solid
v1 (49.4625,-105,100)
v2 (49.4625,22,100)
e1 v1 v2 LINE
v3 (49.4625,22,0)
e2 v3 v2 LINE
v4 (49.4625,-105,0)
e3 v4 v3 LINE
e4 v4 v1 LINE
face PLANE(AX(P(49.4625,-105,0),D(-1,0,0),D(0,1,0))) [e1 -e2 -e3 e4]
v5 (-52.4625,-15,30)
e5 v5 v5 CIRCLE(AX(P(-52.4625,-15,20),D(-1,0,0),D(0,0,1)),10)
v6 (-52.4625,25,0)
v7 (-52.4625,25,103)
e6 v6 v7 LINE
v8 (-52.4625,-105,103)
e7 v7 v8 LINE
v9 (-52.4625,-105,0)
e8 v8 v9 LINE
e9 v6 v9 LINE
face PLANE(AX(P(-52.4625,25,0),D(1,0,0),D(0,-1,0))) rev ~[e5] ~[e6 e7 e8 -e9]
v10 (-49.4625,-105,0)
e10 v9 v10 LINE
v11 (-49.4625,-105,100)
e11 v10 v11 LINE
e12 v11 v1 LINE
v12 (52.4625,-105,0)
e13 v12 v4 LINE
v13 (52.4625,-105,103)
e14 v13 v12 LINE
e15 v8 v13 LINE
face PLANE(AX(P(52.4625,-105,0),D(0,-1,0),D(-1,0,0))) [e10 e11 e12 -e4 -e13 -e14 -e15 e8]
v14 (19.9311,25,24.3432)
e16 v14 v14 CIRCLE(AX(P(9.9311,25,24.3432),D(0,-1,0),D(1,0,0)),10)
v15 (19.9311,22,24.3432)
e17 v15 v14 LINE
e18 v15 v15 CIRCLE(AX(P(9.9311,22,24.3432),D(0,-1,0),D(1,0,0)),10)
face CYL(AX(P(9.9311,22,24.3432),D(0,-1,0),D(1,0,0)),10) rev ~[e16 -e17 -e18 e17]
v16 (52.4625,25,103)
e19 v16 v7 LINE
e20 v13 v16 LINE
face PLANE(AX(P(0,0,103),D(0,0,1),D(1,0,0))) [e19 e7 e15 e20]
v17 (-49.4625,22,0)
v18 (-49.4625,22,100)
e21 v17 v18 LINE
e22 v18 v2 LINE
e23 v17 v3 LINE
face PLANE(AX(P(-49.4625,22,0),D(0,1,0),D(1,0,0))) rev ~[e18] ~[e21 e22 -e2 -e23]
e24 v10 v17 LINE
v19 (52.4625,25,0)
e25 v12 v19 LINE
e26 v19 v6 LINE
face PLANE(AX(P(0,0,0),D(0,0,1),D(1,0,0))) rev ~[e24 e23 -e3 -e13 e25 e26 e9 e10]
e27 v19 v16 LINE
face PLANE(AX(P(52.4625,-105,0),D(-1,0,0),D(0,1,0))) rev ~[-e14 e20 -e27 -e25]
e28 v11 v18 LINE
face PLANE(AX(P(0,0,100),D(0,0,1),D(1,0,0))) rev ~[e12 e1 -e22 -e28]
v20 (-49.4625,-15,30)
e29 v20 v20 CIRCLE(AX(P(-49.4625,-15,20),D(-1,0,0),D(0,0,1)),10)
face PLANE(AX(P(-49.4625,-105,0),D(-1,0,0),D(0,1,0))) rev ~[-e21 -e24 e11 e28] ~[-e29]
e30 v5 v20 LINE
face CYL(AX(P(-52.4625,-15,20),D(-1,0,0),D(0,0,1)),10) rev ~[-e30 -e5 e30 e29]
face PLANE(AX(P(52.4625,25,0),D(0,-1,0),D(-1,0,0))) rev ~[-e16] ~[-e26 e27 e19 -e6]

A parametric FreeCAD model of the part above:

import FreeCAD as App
import Part
import Sketcher
from FreeCAD import Vector
Q = App.Units.Quantity

doc = App.newDocument("Part")
body = doc.addObject("PartDesign::Body", "Body")

sketch1 = body.newObject("Sketcher::SketchObject", "Sketch")
sketch1.AttachmentSupport = (doc.getObject("XY_Plane"), [""])
sketch1.MapMode = "FlatFace"
sketch1.addGeometry([
    Part.LineSegment(Vector(52.5, -105, 0), Vector(52.5, 25, 0)),
    Part.LineSegment(Vector(52.5, 25, 0), Vector(-52.5, 25, 0)),
    Part.LineSegment(Vector(-52.5, 25, 0), Vector(-52.5, -105, 0)),
    Part.LineSegment(Vector(-52.5, -105, 0), Vector(-49.5, -105, 0)),
    Part.LineSegment(Vector(-49.5, -105, 0), Vector(-49.5, 22, 0)),
    Part.LineSegment(Vector(-49.5, 22, 0), Vector(49.5, 22, 0)),
    Part.LineSegment(Vector(49.5, 22, 0), Vector(49.5, -105, 0)),
    Part.LineSegment(Vector(49.5, -105, 0), Vector(52.5, -105, 0)),
], False)
sketch1.addConstraint([
    Sketcher.Constraint("Coincident", 0, 2, 1, 1),
    Sketcher.Constraint("Coincident", 1, 2, 2, 1),
    Sketcher.Constraint("Coincident", 2, 2, 3, 1),
    Sketcher.Constraint("Coincident", 3, 2, 4, 1),
    Sketcher.Constraint("Coincident", 4, 2, 5, 1),
    Sketcher.Constraint("Coincident", 5, 2, 6, 1),
    Sketcher.Constraint("Coincident", 6, 2, 7, 1),
    Sketcher.Constraint("Coincident", 7, 2, 0, 1),
    Sketcher.Constraint("Vertical", 0),
    Sketcher.Constraint("Horizontal", 1),
    Sketcher.Constraint("Vertical", 2),
    Sketcher.Constraint("Horizontal", 3),
    Sketcher.Constraint("Vertical", 4),
    Sketcher.Constraint("Horizontal", 5),
    Sketcher.Constraint("Vertical", 6),
    Sketcher.Constraint("Horizontal", 7),
    Sketcher.Constraint("Symmetric", 3, 2, 6, 2, -2),
    Sketcher.Constraint("Equal", 3, 7),
    Sketcher.Constraint("DistanceY", 4, 1, 4, 2, Q("5 in")),
    Sketcher.Constraint("DistanceX", 3, 1, 3, 2, Q("0.1181 in")),
    Sketcher.Constraint("DistanceX", 5, 1, 5, 2, 98.925),
    Sketcher.Constraint("DistanceY", 4, 2, 1, 2, Q("0.1181 in")),
    Sketcher.Constraint("DistanceY", -1, 1, 0, 2, 25.0),
])
pad1 = body.newObject("PartDesign::Pad", "Pad")
pad1.Profile = sketch1
pad1.Length = Q("3.9370079 in")

sketch2 = body.newObject("Sketcher::SketchObject", "Sketch001")
sketch2.AttachmentSupport = (doc.getObject("XY_Plane"), [""])
sketch2.MapMode = "FlatFace"
sketch2.AttachmentOffset = App.Placement(Vector(0, 0, 3.9370079 * 25.4), App.Rotation())
sketch2.addGeometry([
    Part.LineSegment(Vector(-52, -105, 0), Vector(52, -105, 0)),
    Part.LineSegment(Vector(52, -105, 0), Vector(52, 25, 0)),
    Part.LineSegment(Vector(52, 25, 0), Vector(-52, 25, 0)),
    Part.LineSegment(Vector(-52, 25, 0), Vector(-52, -105, 0)),
], False)
sketch2.addConstraint([
    Sketcher.Constraint("Coincident", 0, 2, 1, 1),
    Sketcher.Constraint("Coincident", 1, 2, 2, 1),
    Sketcher.Constraint("Coincident", 2, 2, 3, 1),
    Sketcher.Constraint("Coincident", 3, 2, 0, 1),
    Sketcher.Constraint("Horizontal", 0),
    Sketcher.Constraint("Vertical", 1),
    Sketcher.Constraint("Horizontal", 2),
    Sketcher.Constraint("Vertical", 3),
    Sketcher.Constraint("DistanceX", 0, 1, 0, 2, Q("4.1309 in")),
    Sketcher.Constraint("DistanceY", 1, 1, 1, 2, Q("5.1181 in")),
    Sketcher.Constraint("DistanceX", -1, 1, 0, 2, 52.4625),
    Sketcher.Constraint("DistanceY", 0, 2, -1, 1, 105.0),
])
pad2 = body.newObject("PartDesign::Pad", "Pad001")
pad2.Profile = sketch2
pad2.Length = Q("0.1181102 in")

sketch3 = body.newObject("Sketcher::SketchObject", "Sketch002")
sketch3.AttachmentSupport = (doc.getObject("YZ_Plane"), [""])
sketch3.MapMode = "FlatFace"
sketch3.AttachmentOffset = App.Placement(Vector(0, 0, -52.4625), App.Rotation())
sketch3.addGeometry(Part.Circle(Vector(-15, 20, 0), Vector(0, 0, 1), 10), False)
sketch3.addConstraint([
    Sketcher.Constraint("Diameter", 0, Q("0.7874 in")),
    Sketcher.Constraint("DistanceY", -1, 1, 0, 3, Q("0.7874 in")),
    Sketcher.Constraint("DistanceX", 0, 3, -1, 1, 15.0),
])
pocket1 = body.newObject("PartDesign::Pocket", "Pocket")
pocket1.Profile = sketch3
pocket1.Length = Q("0.1181102 in")
pocket1.Reversed = True

sketch4 = body.newObject("Sketcher::SketchObject", "Sketch003")
sketch4.AttachmentSupport = (doc.getObject("XZ_Plane"), [""])
sketch4.MapMode = "FlatFace"
sketch4.AttachmentOffset = App.Placement(Vector(0, 0, -22), App.Rotation())
sketch4.addGeometry(Part.Circle(Vector(10, 24, 0), Vector(0, 0, 1), 10), False)
sketch4.addConstraint([
    Sketcher.Constraint("Diameter", 0, Q("0.7874 in")),
    Sketcher.Constraint("DistanceX", -1, 1, 0, 3, Q("0.391 in")),
    Sketcher.Constraint("DistanceY", -1, 1, 0, 3, Q("0.9584 in")),
])
pocket2 = body.newObject("PartDesign::Pocket", "Pocket001")
pocket2.Profile = sketch4
pocket2.Length = Q("0.1181102 in")

doc.recompute()
